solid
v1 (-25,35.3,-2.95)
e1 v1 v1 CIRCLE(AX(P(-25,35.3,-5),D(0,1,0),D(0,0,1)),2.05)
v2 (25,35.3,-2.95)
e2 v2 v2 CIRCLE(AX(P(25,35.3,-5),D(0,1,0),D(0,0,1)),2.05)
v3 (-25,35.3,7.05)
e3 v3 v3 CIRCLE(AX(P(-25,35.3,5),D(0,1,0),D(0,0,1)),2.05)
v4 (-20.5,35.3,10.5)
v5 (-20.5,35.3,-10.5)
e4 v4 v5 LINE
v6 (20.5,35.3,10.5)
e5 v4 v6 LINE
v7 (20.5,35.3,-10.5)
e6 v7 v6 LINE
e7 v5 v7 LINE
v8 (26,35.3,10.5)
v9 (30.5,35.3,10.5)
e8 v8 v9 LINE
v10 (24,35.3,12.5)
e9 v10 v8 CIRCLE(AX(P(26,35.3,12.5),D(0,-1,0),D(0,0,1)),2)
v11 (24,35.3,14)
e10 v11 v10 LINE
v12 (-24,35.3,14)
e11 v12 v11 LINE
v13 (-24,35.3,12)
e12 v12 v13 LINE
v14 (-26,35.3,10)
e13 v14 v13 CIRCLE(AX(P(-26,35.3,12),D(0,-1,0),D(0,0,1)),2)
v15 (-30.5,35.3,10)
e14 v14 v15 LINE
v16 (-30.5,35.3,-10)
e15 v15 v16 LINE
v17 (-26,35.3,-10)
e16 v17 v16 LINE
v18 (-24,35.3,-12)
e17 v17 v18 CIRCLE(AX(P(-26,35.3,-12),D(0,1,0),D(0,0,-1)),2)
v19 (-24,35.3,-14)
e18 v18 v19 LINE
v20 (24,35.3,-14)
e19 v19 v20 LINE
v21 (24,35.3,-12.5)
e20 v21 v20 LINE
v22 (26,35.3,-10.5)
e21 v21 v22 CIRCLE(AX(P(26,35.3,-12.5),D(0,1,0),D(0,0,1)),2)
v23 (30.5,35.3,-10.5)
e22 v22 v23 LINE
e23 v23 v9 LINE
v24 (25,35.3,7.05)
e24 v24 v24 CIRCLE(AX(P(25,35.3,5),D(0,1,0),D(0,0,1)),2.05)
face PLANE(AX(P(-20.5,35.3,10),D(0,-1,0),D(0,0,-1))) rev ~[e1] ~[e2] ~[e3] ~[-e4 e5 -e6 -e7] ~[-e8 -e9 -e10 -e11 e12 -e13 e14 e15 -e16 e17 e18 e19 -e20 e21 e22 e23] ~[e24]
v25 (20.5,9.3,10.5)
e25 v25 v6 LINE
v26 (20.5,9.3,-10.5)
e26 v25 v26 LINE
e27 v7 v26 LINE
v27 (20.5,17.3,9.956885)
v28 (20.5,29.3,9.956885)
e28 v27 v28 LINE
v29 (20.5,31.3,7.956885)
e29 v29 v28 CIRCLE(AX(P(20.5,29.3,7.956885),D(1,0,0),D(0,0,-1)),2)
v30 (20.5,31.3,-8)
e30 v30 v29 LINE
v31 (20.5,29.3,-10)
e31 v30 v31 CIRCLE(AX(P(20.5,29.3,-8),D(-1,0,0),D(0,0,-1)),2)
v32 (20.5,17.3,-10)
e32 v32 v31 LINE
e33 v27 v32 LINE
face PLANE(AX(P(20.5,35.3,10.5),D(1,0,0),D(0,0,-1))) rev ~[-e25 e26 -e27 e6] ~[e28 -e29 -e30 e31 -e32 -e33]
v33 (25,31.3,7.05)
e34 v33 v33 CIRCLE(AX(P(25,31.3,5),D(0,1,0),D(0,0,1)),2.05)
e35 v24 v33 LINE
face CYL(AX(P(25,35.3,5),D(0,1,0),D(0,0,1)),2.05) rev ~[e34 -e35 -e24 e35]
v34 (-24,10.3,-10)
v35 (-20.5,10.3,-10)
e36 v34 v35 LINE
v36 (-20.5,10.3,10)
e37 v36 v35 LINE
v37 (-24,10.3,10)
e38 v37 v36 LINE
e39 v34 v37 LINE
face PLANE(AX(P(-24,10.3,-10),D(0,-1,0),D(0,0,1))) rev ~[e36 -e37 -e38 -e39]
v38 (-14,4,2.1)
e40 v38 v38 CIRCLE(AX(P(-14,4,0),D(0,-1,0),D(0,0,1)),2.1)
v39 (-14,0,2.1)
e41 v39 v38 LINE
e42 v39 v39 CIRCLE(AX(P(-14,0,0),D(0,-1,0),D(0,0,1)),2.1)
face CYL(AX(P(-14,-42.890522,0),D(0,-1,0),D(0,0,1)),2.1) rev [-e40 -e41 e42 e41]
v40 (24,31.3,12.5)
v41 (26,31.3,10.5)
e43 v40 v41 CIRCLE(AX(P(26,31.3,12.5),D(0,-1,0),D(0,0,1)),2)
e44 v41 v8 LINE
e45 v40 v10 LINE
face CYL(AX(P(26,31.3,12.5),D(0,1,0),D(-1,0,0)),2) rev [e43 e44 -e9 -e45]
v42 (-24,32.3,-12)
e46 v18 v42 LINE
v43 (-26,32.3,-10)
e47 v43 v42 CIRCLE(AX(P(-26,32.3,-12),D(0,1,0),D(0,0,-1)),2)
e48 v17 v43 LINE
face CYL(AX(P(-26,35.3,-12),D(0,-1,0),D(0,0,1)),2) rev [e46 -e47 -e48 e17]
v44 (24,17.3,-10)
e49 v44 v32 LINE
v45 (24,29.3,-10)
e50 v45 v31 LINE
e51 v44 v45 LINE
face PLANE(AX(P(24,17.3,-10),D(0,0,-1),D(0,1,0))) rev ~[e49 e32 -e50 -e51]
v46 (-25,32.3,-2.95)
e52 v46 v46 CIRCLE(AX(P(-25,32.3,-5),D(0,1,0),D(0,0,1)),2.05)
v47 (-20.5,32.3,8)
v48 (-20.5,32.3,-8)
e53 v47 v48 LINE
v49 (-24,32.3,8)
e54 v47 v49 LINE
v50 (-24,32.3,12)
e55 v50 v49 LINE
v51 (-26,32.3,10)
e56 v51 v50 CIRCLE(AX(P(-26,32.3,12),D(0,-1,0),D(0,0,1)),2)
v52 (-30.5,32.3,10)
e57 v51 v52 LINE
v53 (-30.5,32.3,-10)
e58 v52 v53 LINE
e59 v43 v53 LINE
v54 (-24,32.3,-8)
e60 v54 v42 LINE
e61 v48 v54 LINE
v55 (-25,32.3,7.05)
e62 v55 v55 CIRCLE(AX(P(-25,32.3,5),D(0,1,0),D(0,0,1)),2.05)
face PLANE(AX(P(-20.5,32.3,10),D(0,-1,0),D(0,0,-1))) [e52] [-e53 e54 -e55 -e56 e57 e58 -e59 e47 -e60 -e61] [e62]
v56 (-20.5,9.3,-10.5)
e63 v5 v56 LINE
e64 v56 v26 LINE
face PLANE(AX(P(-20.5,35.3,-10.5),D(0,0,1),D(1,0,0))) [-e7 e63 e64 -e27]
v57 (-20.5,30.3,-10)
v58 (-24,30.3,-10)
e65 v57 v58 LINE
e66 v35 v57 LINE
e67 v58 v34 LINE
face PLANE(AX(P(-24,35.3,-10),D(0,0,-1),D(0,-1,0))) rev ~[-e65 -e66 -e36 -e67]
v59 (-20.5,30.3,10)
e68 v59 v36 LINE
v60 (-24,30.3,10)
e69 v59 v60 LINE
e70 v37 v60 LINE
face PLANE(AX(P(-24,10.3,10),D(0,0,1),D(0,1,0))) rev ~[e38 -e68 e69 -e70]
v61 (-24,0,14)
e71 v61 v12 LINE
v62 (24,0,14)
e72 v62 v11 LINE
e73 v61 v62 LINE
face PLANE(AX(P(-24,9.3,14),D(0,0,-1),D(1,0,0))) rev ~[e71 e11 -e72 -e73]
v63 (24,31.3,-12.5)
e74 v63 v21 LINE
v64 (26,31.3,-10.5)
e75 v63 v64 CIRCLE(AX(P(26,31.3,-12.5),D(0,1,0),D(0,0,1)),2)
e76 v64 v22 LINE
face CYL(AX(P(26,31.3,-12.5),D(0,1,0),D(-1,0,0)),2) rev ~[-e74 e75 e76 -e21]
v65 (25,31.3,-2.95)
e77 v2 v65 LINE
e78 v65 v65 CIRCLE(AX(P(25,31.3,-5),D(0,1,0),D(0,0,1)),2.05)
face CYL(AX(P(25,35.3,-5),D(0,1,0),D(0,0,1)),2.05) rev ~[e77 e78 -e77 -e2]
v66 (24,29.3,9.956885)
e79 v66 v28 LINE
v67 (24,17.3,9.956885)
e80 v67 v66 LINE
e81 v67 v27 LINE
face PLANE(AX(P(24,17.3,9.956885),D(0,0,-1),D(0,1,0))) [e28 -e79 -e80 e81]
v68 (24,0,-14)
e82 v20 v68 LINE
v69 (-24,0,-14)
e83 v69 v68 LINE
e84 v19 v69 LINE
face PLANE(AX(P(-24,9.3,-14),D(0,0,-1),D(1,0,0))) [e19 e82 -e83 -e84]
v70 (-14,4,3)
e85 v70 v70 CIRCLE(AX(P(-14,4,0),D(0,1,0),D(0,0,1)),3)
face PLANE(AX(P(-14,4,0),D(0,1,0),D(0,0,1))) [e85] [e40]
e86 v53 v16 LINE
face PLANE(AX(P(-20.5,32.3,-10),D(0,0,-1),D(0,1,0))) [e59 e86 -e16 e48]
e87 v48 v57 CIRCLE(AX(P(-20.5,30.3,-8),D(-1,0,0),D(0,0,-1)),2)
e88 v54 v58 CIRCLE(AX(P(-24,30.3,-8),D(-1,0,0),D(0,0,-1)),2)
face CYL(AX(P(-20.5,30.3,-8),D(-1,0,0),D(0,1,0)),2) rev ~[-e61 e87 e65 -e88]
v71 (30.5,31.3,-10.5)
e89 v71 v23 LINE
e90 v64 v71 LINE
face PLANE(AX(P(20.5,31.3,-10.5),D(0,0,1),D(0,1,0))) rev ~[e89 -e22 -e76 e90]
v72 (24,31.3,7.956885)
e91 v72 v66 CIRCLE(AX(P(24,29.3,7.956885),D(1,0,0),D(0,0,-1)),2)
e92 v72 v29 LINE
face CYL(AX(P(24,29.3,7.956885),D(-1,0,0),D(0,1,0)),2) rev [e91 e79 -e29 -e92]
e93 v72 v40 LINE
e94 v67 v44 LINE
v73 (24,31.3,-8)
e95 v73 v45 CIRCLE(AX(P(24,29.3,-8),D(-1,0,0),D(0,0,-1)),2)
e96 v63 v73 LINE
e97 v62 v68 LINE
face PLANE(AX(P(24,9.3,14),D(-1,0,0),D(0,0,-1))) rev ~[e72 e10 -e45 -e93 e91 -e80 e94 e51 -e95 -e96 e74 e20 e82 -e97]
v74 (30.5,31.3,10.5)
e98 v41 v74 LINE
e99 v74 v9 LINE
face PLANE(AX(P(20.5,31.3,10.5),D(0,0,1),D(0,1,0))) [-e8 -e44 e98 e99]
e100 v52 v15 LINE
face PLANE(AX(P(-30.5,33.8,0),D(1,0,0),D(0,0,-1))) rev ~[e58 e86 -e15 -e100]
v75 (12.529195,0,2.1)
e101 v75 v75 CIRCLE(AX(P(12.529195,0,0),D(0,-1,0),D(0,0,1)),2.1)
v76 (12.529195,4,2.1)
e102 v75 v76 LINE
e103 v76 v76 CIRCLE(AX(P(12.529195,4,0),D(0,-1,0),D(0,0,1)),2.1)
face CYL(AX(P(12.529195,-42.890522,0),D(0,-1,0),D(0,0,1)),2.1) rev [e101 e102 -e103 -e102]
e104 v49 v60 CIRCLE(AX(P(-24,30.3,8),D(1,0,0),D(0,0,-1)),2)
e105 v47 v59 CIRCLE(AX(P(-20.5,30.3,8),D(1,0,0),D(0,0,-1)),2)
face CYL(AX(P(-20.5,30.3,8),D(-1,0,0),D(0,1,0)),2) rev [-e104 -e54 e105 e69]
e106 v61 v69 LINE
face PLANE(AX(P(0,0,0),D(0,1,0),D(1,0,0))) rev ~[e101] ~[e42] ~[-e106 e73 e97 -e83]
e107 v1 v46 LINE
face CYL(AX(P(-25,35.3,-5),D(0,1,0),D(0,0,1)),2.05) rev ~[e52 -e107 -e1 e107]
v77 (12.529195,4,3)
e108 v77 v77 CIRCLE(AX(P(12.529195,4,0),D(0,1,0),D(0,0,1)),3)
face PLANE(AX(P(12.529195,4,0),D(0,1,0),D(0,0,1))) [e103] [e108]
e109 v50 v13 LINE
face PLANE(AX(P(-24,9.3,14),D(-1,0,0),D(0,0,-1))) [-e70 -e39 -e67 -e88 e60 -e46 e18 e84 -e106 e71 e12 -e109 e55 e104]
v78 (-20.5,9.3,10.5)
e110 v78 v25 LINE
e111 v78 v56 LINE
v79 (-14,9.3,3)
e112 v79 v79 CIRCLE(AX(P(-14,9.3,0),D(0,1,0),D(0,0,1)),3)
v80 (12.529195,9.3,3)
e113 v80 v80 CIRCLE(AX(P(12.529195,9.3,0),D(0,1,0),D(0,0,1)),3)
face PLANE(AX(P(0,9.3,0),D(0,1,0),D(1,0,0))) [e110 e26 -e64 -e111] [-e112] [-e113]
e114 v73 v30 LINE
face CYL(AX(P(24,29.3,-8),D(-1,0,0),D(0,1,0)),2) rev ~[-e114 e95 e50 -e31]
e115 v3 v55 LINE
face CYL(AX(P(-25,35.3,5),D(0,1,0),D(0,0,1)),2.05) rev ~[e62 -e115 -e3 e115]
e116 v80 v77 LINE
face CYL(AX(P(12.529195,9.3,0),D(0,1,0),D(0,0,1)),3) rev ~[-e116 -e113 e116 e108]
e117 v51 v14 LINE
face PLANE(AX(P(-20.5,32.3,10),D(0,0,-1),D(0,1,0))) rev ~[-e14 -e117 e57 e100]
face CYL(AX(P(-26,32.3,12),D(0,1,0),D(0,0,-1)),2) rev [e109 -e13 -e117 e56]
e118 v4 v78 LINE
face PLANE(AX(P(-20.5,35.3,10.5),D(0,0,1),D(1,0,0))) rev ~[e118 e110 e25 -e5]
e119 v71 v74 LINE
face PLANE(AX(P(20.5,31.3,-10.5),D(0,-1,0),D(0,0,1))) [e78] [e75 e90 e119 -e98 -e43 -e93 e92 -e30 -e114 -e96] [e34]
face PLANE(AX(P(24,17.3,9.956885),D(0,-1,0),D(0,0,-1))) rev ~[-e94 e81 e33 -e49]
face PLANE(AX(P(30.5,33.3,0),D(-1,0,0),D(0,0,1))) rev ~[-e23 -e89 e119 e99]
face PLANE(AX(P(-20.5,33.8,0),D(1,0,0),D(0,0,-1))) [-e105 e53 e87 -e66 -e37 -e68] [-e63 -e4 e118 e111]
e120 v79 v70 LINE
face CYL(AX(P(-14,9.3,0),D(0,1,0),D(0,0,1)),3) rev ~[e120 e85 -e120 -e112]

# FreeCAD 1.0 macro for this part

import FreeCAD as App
import Part
import Sketcher

V = App.Vector
Q = App.Units.Quantity


def edges_at(feature, points):
    """Names of the edges that pass closest to the given points."""
    edges = feature.Shape.Edges
    near = lambda p: min(range(len(edges)), key=lambda i: edges[i].distToShape(Part.Vertex(*p))[0])
    return sorted({f"Edge{near(p) + 1}" for p in points})

doc = App.newDocument("Part")
body = doc.addObject("PartDesign::Body", "Body")

sketch1 = body.newObject("Sketcher::SketchObject", "Sketch")
sketch1.AttachmentSupport = (doc.getObject("XZ_Plane"), [""])
sketch1.MapMode = "FlatFace"
sketch1.addGeometry([
    Part.LineSegment(V(-24, -14, 0), V(-24, 14, 0)),
    Part.LineSegment(V(-24, 14, 0), V(24, 14, 0)),
    Part.LineSegment(V(24, 14, 0), V(24, -14, 0)),
    Part.LineSegment(V(24, -14, 0), V(-24, -14, 0)),
], False)
sketch1.addConstraint([
    Sketcher.Constraint("Coincident", 0, 2, 1, 1),
    Sketcher.Constraint("Coincident", 1, 2, 2, 1),
    Sketcher.Constraint("Coincident", 2, 2, 3, 1),
    Sketcher.Constraint("Coincident", 3, 2, 0, 1),
    Sketcher.Constraint("Vertical", 0),
    Sketcher.Constraint("Horizontal", 1),
    Sketcher.Constraint("Vertical", 2),
    Sketcher.Constraint("Horizontal", 3),
    Sketcher.Constraint("Symmetric", 0, 2, 2, 2, -1, 1),
    Sketcher.Constraint("DistanceX", 1, 1, 1, 2, Q("48 mm")),
    Sketcher.Constraint("DistanceY", 0, 1, 0, 2, Q("28 mm")),
])
pad1 = body.newObject("PartDesign::Pad", "Pad")
pad1.Profile = sketch1
pad1.Length = 9.3
pad1.Reversed = True

sketch2 = body.newObject("Sketcher::SketchObject", "Sketch001")
sketch2.AttachmentSupport = (doc.getObject("XZ_Plane"), [""])
sketch2.MapMode = "FlatFace"
sketch2.AttachmentOffset = App.Placement(V(0, 0, -9.3), App.Rotation())
sketch2.addGeometry([
    Part.LineSegment(V(-24, -14, 0), V(-24, 14, 0)),
    Part.LineSegment(V(-24, 14, 0), V(24, 14, 0)),
    Part.LineSegment(V(24, 14, 0), V(24, -14, 0)),
    Part.LineSegment(V(24, -14, 0), V(-24, -14, 0)),
    Part.LineSegment(V(20, 10, 0), V(-20, 10, 0)),
    Part.LineSegment(V(-20, 10, 0), V(-20, -10, 0)),
    Part.LineSegment(V(-20, -10, 0), V(20, -10, 0)),
    Part.LineSegment(V(20, -10, 0), V(20, 10, 0)),
], False)
sketch2.addConstraint([
    Sketcher.Constraint("Coincident", 0, 2, 1, 1),
    Sketcher.Constraint("Coincident", 1, 2, 2, 1),
    Sketcher.Constraint("Coincident", 2, 2, 3, 1),
    Sketcher.Constraint("Coincident", 3, 2, 0, 1),
    Sketcher.Constraint("Coincident", 4, 2, 5, 1),
    Sketcher.Constraint("Coincident", 5, 2, 6, 1),
    Sketcher.Constraint("Coincident", 6, 2, 7, 1),
    Sketcher.Constraint("Coincident", 7, 2, 4, 1),
    Sketcher.Constraint("Vertical", 0),
    Sketcher.Constraint("Horizontal", 1),
    Sketcher.Constraint("Vertical", 2),
    Sketcher.Constraint("Horizontal", 3),
    Sketcher.Constraint("Horizontal", 4),
    Sketcher.Constraint("Vertical", 5),
    Sketcher.Constraint("Horizontal", 6),
    Sketcher.Constraint("Vertical", 7),
    Sketcher.Constraint("Symmetric", 0, 2, 2, 2, -1, 1),
    Sketcher.Constraint("Symmetric", 4, 2, 6, 2, -1, 1),
    Sketcher.Constraint("DistanceX", 1, 1, 1, 2, Q("48 mm")),
    Sketcher.Constraint("DistanceX", 4, 2, 4, 1, Q("40 mm")),
    Sketcher.Constraint("DistanceY", 0, 1, 0, 2, Q("28 mm")),
    Sketcher.Constraint("DistanceY", 5, 2, 5, 1, Q("20 mm")),
])
pad2 = body.newObject("PartDesign::Pad", "Pad001")
pad2.Profile = sketch2
pad2.Length = 26
pad2.Reversed = True

sketch3 = body.newObject("Sketcher::SketchObject", "Sketch002")
sketch3.AttachmentSupport = (doc.getObject("XZ_Plane"), [""])
sketch3.MapMode = "FlatFace"
sketch3.AttachmentOffset = App.Placement(V(0, 0, -35.3), App.Rotation())
sketch3.addGeometry([
    Part.LineSegment(V(-20.5, -10.5, 0), V(-20.5, 10.5, 0)),
    Part.LineSegment(V(-20.5, 10.5, 0), V(20.5, 10.5, 0)),
    Part.LineSegment(V(20.5, 10.5, 0), V(20.5, -10.5, 0)),
    Part.LineSegment(V(20.5, -10.5, 0), V(-20.5, -10.5, 0)),
], False)
sketch3.addConstraint([
    Sketcher.Constraint("Coincident", 0, 2, 1, 1),
    Sketcher.Constraint("Coincident", 1, 2, 2, 1),
    Sketcher.Constraint("Coincident", 2, 2, 3, 1),
    Sketcher.Constraint("Coincident", 3, 2, 0, 1),
    Sketcher.Constraint("Vertical", 0),
    Sketcher.Constraint("Horizontal", 1),
    Sketcher.Constraint("Vertical", 2),
    Sketcher.Constraint("Horizontal", 3),
    Sketcher.Constraint("Symmetric", 0, 2, 2, 2, -1, 1),
    Sketcher.Constraint("DistanceX", 1, 1, 1, 2, Q("41 mm")),
    Sketcher.Constraint("DistanceY", 0, 1, 0, 2, Q("21 mm")),
])
pocket1 = body.newObject("PartDesign::Pocket", "Pocket")
pocket1.Profile = sketch3
pocket1.Length = 26
pocket1.Reversed = True

sketch4 = body.newObject("Sketcher::SketchObject", "Sketch003")
sketch4.AttachmentSupport = (doc.getObject("YZ_Plane"), [""])
sketch4.MapMode = "FlatFace"
sketch4.AttachmentOffset = App.Placement(V(0, 0, 24), App.Rotation())
sketch4.addGeometry([
    Part.LineSegment(V(35.3, 9.956885, 0), V(17.3, 9.956885, 0)),
    Part.LineSegment(V(17.3, 9.956885, 0), V(17.3, -10, 0)),
    Part.LineSegment(V(17.3, -10, 0), V(35.3, -10, 0)),
    Part.LineSegment(V(35.3, -10, 0), V(35.3, 9.956885, 0)),
], False)
sketch4.addConstraint([
    Sketcher.Constraint("Coincident", 0, 2, 1, 1),
    Sketcher.Constraint("Coincident", 1, 2, 2, 1),
    Sketcher.Constraint("Coincident", 2, 2, 3, 1),
    Sketcher.Constraint("Coincident", 3, 2, 0, 1),
    Sketcher.Constraint("Horizontal", 0),
    Sketcher.Constraint("Vertical", 1),
    Sketcher.Constraint("Horizontal", 2),
    Sketcher.Constraint("Vertical", 3),
    Sketcher.Constraint("DistanceX", 0, 2, 0, 1, Q("18 mm")),
    Sketcher.Constraint("DistanceY", 1, 2, -1, 1, Q("10 mm")),
    Sketcher.Constraint("DistanceX", -1, 1, 0, 2, Q("17.3 mm")),
    Sketcher.Constraint("DistanceY", 1, 2, 1, 1, Q("19.956885 mm")),
])
pocket2 = body.newObject("PartDesign::Pocket", "Pocket001")
pocket2.Profile = sketch4
pocket2.Length = 10

sketch5 = body.newObject("Sketcher::SketchObject", "Sketch004")
sketch5.AttachmentSupport = (doc.getObject("YZ_Plane"), [""])
sketch5.MapMode = "FlatFace"
sketch5.AttachmentOffset = App.Placement(V(0, 0, -24), App.Rotation())
sketch5.addGeometry([
    Part.LineSegment(V(35.3, -10, 0), V(10.3, -10, 0)),
    Part.LineSegment(V(10.3, -10, 0), V(10.3, 10, 0)),
    Part.LineSegment(V(10.3, 10, 0), V(35.3, 10, 0)),
    Part.LineSegment(V(35.3, 10, 0), V(35.3, -10, 0)),
], False)
sketch5.addConstraint([
    Sketcher.Constraint("Coincident", 0, 2, 1, 1),
    Sketcher.Constraint("Coincident", 1, 2, 2, 1),
    Sketcher.Constraint("Coincident", 2, 2, 3, 1),
    Sketcher.Constraint("Coincident", 3, 2, 0, 1),
    Sketcher.Constraint("Horizontal", 0),
    Sketcher.Constraint("Vertical", 1),
    Sketcher.Constraint("Horizontal", 2),
    Sketcher.Constraint("Vertical", 3),
    Sketcher.Constraint("DistanceX", 0, 2, 0, 1, Q("25 mm")),
    Sketcher.Constraint("DistanceY", 1, 1, 1, 2, Q("20 mm")),
    Sketcher.Constraint("DistanceY", 0, 2, -1, 1, Q("10 mm")),
    Sketcher.Constraint("DistanceX", -1, 1, 0, 2, Q("10.3 mm")),
])
pocket3 = body.newObject("PartDesign::Pocket", "Pocket002")
pocket3.Profile = sketch5
pocket3.Length = 6
pocket3.Reversed = True

sketch6 = body.newObject("Sketcher::SketchObject", "Sketch005")
sketch6.AttachmentSupport = (doc.getObject("YZ_Plane"), [""])
sketch6.MapMode = "FlatFace"
sketch6.AttachmentOffset = App.Placement(V(0, 0, -20.5), App.Rotation())
sketch6.addGeometry([
    Part.LineSegment(V(35.3, 10, 0), V(32.3, 10, 0)),
    Part.LineSegment(V(32.3, 10, 0), V(32.3, -10, 0)),
    Part.LineSegment(V(32.3, -10, 0), V(35.3, -10, 0)),
    Part.LineSegment(V(35.3, -10, 0), V(35.3, 10, 0)),
], False)
sketch6.addConstraint([
    Sketcher.Constraint("Coincident", 0, 2, 1, 1),
    Sketcher.Constraint("Coincident", 1, 2, 2, 1),
    Sketcher.Constraint("Coincident", 2, 2, 3, 1),
    Sketcher.Constraint("Coincident", 3, 2, 0, 1),
    Sketcher.Constraint("Horizontal", 0),
    Sketcher.Constraint("Vertical", 1),
    Sketcher.Constraint("Horizontal", 2),
    Sketcher.Constraint("Vertical", 3),
    Sketcher.Constraint("DistanceX", 0, 2, 0, 1, Q("3 mm")),
    Sketcher.Constraint("DistanceY", 1, 2, 1, 1, Q("20 mm")),
    Sketcher.Constraint("DistanceY", -1, 1, 0, 2, Q("10 mm")),
    Sketcher.Constraint("DistanceX", -1, 1, 0, 2, Q("32.3 mm")),
])
pad3 = body.newObject("PartDesign::Pad", "Pad002")
pad3.Profile = sketch6
pad3.Length = 10
pad3.Reversed = True
doc.recompute()

fillet = body.newObject("PartDesign::Fillet", "Fillet")
fillet.Base = (pad3, edges_at(pad3, [(-24, 33.8, 10), (-24, 33.8, -10)]))
fillet.Radius = 2

sketch7 = body.newObject("Sketcher::SketchObject", "Sketch006")
sketch7.AttachmentSupport = (doc.getObject("YZ_Plane"), [""])
sketch7.MapMode = "FlatFace"
sketch7.AttachmentOffset = App.Placement(V(0, 0, 20.5), App.Rotation())
sketch7.addGeometry([
    Part.LineSegment(V(35.3, -10.5, 0), V(31.3, -10.5, 0)),
    Part.LineSegment(V(31.3, -10.5, 0), V(31.3, 10.5, 0)),
    Part.LineSegment(V(31.3, 10.5, 0), V(35.3, 10.5, 0)),
    Part.LineSegment(V(35.3, 10.5, 0), V(35.3, -10.5, 0)),
], False)
sketch7.addConstraint([
    Sketcher.Constraint("Coincident", 0, 2, 1, 1),
    Sketcher.Constraint("Coincident", 1, 2, 2, 1),
    Sketcher.Constraint("Coincident", 2, 2, 3, 1),
    Sketcher.Constraint("Coincident", 3, 2, 0, 1),
    Sketcher.Constraint("Horizontal", 0),
    Sketcher.Constraint("Vertical", 1),
    Sketcher.Constraint("Horizontal", 2),
    Sketcher.Constraint("Vertical", 3),
    Sketcher.Constraint("DistanceX", 0, 2, 0, 1, Q("4 mm")),
    Sketcher.Constraint("DistanceY", 1, 1, 1, 2, Q("21 mm")),
    Sketcher.Constraint("DistanceX", -1, 1, 0, 2, Q("31.3 mm")),
    Sketcher.Constraint("DistanceY", 0, 2, -1, 1, Q("10.5 mm")),
])
pad4 = body.newObject("PartDesign::Pad", "Pad003")
pad4.Profile = sketch7
pad4.Length = 10

sketch8 = body.newObject("Sketcher::SketchObject", "Sketch007")
sketch8.AttachmentSupport = (doc.getObject("XZ_Plane"), [""])
sketch8.MapMode = "FlatFace"
sketch8.AttachmentOffset = App.Placement(V(0, 0, -35.3), App.Rotation())
sketch8.addGeometry([
    Part.Circle(V(25, -5, 0), V(0, 0, 1), 2.05),
    Part.Circle(V(25, 5, 0), V(0, 0, 1), 2.05),
    Part.Circle(V(-25, -5, 0), V(0, 0, 1), 2.05),
    Part.Circle(V(-25, 5, 0), V(0, 0, 1), 2.05),
], False)
sketch8.addConstraint([
    Sketcher.Constraint("Equal", 0, 1),
    Sketcher.Constraint("Equal", 1, 2),
    Sketcher.Constraint("Equal", 2, 3),
    Sketcher.Constraint("Symmetric", 1, 3, 2, 3, -1, 1),
    Sketcher.Constraint("Symmetric", 0, 3, 3, 3, -1, 1),
    Sketcher.Constraint("Symmetric", 0, 3, 2, 3, -2),
    Sketcher.Constraint("Diameter", 0, Q("4.1 mm")),
    Sketcher.Constraint("DistanceX", -1, 1, 0, 3, Q("25 mm")),
    Sketcher.Constraint("DistanceY", 0, 3, -1, 1, Q("5 mm")),
])
pocket4 = body.newObject("PartDesign::Pocket", "Pocket003")
pocket4.Profile = sketch8
pocket4.Length = 10
pocket4.Reversed = True
doc.recompute()

fillet2 = body.newObject("PartDesign::Fillet", "Fillet001")
fillet2.Base = (pocket4, edges_at(pocket4, [(24, 33.3, -10.5), (24, 33.3, 10.5)]))
fillet2.Radius = 2

sketch9 = body.newObject("Sketcher::SketchObject", "Sketch008")
sketch9.AttachmentSupport = (doc.getObject("XZ_Plane"), [""])
sketch9.MapMode = "FlatFace"
sketch9.AttachmentOffset = App.Placement(V(0, 0, -9.3), App.Rotation())
sketch9.addGeometry([
    Part.Circle(V(-14, 0, 0), V(0, 0, 1), 3),
    Part.Circle(V(12.529195, 0, 0), V(0, 0, 1), 3),
], False)
sketch9.addConstraint([
    Sketcher.Constraint("Equal", 0, 1),
    Sketcher.Constraint("PointOnObject", 0, 3, -1),
    Sketcher.Constraint("PointOnObject", 1, 3, -1),
    Sketcher.Constraint("Diameter", 0, Q("6 mm")),
    Sketcher.Constraint("DistanceX", 0, 3, -1, 1, Q("14 mm")),
    Sketcher.Constraint("DistanceX", -1, 1, 1, 3, Q("12.529195 mm")),
])
pocket5 = body.newObject("PartDesign::Pocket", "Pocket004")
pocket5.Profile = sketch9
pocket5.Length = 5.3
pocket5.Reversed = True

sketch10 = body.newObject("Sketcher::SketchObject", "Sketch009")
sketch10.AttachmentSupport = (doc.getObject("XZ_Plane"), [""])
sketch10.MapMode = "FlatFace"
sketch10.AttachmentOffset = App.Placement(V(0, 0, -4), App.Rotation())
sketch10.addGeometry([
    Part.Circle(V(-14, 0, 0), V(0, 0, 1), 2.1),
    Part.Circle(V(12.529195, 0, 0), V(0, 0, 1), 2.1),
], False)
sketch10.addConstraint([
    Sketcher.Constraint("Equal", 0, 1),
    Sketcher.Constraint("PointOnObject", 0, 3, -1),
    Sketcher.Constraint("PointOnObject", 1, 3, -1),
    Sketcher.Constraint("Diameter", 0, Q("4.2 mm")),
    Sketcher.Constraint("DistanceX", 0, 3, -1, 1, Q("14 mm")),
    Sketcher.Constraint("DistanceX", -1, 1, 1, 3, Q("12.529195 mm")),
])
pocket6 = body.newObject("PartDesign::Pocket", "Pocket005")
pocket6.Profile = sketch10
pocket6.Type = "ThroughAll"
pocket6.Midplane = True
doc.recompute()

fillet3 = body.newObject("PartDesign::Fillet", "Fillet002")
fillet3.Base = (pocket6, edges_at(pocket6, [
    (-22.25, 32.3, -10),
    (-22.25, 32.3, 10),
    (22.25, 31.3, 9.957),
    (22.25, 31.3, -10),
]))
fillet3.Radius = 2

doc.recompute()
